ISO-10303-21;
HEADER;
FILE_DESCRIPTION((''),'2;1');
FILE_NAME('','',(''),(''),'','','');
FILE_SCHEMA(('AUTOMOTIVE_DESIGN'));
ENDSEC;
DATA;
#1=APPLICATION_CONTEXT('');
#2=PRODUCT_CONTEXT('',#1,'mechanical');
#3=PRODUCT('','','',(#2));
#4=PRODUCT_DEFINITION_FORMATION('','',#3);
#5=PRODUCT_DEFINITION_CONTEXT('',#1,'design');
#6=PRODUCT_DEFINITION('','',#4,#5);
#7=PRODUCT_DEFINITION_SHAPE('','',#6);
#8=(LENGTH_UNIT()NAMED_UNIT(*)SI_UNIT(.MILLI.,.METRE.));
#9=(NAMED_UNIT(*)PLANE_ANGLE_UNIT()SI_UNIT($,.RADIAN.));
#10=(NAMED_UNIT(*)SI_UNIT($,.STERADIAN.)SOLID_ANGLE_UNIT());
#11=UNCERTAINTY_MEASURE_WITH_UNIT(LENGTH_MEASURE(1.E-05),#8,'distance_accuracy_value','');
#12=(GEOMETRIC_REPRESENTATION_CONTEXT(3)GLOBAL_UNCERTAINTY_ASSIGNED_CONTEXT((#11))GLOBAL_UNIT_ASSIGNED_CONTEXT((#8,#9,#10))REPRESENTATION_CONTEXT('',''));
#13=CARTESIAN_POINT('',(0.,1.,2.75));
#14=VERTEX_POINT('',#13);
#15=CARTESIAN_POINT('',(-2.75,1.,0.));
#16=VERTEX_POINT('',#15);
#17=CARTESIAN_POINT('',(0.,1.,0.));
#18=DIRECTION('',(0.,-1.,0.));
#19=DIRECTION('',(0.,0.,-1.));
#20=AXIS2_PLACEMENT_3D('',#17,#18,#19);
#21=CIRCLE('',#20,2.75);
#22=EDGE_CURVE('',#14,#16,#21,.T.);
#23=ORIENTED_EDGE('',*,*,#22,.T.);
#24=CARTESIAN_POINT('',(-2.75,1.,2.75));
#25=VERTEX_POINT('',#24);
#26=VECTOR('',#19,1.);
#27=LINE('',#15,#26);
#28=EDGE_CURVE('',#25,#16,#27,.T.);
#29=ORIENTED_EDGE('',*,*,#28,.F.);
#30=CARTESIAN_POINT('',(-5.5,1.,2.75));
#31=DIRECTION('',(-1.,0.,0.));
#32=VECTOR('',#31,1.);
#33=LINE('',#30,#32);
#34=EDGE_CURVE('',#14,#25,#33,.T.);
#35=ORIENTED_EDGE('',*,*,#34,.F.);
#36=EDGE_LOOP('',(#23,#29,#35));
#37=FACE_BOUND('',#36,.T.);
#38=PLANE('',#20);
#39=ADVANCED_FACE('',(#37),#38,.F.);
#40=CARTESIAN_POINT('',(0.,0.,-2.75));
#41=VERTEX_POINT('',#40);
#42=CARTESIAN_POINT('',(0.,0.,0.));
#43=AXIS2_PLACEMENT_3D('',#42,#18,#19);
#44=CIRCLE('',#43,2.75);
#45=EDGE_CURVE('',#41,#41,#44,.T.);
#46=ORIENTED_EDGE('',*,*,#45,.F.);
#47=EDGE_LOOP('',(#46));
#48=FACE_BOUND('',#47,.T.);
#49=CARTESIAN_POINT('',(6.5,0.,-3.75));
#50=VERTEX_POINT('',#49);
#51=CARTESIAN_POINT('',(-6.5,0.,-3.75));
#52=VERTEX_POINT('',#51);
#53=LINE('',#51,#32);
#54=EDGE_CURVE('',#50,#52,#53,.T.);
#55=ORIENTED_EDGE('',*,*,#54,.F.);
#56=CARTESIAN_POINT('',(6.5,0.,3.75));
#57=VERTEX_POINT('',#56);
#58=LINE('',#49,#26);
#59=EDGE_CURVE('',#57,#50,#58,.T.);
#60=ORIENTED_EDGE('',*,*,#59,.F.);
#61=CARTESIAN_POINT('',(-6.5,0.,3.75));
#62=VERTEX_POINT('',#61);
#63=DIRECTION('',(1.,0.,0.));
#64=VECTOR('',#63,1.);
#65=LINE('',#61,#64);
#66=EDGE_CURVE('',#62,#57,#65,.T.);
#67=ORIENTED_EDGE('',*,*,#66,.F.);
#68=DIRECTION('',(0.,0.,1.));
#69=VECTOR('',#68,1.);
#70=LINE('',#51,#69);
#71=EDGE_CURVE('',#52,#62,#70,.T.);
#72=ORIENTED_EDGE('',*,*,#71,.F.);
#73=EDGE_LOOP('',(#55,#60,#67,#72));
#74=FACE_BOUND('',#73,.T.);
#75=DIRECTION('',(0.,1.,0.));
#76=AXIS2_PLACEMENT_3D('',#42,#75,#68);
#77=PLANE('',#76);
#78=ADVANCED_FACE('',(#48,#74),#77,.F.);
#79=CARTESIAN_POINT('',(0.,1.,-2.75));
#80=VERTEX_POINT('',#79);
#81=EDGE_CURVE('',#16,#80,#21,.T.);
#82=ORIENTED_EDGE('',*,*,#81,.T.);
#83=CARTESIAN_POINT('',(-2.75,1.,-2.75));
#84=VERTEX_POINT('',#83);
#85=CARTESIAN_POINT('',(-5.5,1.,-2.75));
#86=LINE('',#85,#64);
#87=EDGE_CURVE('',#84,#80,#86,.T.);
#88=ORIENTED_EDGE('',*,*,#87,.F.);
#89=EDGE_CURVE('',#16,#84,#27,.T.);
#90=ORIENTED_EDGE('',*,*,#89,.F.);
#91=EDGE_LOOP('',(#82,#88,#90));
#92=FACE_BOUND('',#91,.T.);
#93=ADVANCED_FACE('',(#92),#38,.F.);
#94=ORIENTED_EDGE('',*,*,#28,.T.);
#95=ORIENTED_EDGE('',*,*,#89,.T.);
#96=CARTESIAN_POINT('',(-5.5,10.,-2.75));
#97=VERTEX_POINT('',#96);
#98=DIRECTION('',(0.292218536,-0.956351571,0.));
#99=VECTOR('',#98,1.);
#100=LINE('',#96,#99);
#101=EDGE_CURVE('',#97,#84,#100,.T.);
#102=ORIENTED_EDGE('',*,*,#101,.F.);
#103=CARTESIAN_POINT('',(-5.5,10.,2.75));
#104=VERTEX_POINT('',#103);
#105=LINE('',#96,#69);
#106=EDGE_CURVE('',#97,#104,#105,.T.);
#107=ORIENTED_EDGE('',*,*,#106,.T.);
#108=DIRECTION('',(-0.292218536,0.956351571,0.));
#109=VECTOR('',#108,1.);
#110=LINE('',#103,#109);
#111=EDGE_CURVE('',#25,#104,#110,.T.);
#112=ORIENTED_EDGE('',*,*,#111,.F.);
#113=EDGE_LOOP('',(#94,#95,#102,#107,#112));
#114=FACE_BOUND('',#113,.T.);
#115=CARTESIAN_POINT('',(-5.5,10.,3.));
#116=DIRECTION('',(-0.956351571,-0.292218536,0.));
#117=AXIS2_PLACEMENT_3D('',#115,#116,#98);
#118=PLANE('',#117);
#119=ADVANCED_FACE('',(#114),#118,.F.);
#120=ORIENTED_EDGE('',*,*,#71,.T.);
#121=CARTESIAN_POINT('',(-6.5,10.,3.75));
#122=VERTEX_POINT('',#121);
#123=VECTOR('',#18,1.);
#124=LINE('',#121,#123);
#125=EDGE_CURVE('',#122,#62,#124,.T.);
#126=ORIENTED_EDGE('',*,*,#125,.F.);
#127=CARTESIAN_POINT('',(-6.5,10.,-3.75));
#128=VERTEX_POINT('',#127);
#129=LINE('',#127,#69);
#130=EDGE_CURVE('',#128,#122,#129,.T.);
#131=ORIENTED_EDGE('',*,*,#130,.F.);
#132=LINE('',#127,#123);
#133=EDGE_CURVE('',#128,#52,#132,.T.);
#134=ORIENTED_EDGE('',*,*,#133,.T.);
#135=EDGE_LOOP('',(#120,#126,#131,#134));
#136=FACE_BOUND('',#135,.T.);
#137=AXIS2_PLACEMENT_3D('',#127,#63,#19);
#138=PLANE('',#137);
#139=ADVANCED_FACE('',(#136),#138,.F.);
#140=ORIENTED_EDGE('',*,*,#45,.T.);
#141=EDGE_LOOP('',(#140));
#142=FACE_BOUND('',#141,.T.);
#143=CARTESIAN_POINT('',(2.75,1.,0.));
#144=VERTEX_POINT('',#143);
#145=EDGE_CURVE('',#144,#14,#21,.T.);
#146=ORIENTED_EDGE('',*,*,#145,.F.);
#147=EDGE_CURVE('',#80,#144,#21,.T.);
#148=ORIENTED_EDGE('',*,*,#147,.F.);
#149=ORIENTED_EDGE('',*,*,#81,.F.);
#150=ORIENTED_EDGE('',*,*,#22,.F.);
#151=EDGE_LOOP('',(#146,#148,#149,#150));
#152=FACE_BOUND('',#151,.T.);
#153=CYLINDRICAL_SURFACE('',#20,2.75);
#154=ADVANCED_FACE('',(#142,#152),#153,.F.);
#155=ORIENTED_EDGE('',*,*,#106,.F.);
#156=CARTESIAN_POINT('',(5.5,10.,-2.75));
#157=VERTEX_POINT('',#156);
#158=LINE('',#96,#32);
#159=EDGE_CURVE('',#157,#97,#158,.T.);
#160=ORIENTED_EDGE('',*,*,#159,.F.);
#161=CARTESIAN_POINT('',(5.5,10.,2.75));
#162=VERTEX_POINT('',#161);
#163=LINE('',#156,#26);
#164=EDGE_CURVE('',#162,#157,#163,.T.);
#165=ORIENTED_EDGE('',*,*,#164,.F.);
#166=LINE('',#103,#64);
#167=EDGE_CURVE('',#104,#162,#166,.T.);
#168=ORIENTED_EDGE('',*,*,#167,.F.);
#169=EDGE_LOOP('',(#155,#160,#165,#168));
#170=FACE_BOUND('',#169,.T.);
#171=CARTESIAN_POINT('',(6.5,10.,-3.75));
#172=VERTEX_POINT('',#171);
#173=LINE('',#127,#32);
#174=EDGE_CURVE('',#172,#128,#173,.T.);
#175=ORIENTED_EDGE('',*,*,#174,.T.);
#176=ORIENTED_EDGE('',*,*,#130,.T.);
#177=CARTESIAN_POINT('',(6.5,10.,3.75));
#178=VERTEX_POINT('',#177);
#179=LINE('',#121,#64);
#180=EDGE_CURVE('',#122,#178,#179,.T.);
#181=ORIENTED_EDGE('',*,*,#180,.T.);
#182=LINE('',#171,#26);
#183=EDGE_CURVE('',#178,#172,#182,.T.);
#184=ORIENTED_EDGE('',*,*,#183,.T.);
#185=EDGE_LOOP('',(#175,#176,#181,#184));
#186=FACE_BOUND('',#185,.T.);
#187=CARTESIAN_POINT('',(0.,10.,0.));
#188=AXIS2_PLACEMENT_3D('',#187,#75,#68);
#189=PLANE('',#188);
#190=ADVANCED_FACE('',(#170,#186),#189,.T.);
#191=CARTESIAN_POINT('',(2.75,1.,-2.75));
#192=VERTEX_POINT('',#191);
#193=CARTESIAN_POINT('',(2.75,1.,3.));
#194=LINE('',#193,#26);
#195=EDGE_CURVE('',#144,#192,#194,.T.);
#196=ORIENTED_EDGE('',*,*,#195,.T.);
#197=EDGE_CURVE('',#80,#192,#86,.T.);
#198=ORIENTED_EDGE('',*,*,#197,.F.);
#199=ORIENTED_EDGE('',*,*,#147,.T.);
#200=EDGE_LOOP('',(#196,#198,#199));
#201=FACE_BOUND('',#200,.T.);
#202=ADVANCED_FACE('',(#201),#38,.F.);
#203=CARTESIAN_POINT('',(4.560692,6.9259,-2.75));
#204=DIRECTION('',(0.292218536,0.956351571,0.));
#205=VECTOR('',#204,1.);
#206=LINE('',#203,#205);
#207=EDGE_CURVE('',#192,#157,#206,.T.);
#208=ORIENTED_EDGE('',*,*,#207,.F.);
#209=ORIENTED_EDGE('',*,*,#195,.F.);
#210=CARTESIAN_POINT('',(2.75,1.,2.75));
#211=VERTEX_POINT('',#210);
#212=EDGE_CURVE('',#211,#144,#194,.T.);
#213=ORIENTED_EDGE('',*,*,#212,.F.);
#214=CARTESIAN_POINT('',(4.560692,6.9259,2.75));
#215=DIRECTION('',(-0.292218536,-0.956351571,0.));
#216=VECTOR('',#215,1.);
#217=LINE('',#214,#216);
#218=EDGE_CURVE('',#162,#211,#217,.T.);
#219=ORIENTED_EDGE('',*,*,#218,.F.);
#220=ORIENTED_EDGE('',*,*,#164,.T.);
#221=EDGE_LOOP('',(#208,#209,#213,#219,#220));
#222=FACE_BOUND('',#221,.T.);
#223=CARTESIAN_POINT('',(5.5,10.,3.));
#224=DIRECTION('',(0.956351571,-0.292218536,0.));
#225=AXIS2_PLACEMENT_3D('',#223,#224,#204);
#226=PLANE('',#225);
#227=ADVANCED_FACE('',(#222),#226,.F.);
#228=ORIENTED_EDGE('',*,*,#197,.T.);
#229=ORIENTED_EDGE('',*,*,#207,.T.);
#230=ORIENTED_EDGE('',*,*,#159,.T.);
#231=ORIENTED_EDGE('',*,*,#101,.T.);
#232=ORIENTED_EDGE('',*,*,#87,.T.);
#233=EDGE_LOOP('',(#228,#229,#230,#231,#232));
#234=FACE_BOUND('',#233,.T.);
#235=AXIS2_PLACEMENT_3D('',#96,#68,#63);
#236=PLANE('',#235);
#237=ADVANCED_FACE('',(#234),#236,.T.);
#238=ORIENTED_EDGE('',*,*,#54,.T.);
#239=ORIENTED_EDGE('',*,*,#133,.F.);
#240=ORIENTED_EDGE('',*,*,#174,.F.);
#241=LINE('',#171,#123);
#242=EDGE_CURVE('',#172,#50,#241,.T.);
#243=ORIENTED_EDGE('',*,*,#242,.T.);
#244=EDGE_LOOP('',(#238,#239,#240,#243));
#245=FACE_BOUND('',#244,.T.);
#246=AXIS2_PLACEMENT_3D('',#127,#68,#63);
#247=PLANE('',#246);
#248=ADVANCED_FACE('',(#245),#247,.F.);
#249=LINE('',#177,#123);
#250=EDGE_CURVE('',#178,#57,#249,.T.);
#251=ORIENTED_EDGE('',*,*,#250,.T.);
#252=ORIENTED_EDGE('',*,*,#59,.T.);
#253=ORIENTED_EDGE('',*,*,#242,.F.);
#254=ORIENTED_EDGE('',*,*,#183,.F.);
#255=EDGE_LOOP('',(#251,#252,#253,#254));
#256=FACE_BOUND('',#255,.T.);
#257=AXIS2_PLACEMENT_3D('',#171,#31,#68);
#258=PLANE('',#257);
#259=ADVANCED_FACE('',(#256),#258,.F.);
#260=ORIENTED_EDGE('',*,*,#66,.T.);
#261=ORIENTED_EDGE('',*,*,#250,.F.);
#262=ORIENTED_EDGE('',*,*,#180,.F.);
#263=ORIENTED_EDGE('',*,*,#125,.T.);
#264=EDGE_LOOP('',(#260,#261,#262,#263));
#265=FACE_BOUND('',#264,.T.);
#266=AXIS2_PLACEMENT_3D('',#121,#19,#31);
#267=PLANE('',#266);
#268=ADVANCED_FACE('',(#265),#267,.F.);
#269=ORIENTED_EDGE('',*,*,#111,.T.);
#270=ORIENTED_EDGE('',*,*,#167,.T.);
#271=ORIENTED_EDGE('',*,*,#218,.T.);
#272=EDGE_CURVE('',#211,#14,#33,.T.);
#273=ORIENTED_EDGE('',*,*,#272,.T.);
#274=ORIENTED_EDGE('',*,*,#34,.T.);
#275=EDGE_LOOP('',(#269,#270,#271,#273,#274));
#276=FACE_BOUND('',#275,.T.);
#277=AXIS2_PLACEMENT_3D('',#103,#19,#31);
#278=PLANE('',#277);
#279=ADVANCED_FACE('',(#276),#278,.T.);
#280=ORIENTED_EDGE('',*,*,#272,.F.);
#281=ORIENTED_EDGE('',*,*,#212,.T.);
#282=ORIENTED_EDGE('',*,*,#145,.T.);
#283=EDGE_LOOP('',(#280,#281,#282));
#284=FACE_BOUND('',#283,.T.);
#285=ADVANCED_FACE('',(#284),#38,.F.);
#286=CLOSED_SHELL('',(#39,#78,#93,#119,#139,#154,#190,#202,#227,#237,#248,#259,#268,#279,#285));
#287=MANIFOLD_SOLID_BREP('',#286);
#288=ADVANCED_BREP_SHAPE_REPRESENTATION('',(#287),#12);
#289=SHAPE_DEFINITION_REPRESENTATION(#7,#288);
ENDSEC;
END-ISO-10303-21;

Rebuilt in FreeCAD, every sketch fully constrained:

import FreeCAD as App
import Part
import Sketcher
from FreeCAD import Vector

doc = App.newDocument("Part")
params = doc.addObject("Spreadsheet::Sheet", "Params")
for row, (alias, value) in enumerate([
    ("sketch1_width", "13 mm"),
    ("sketch1_width2", "11 mm"),
    ("sketch1_height", "7.5 mm"),
    ("sketch1_height2", "5.5 mm"),
    ("pad1_length", "10 mm"),
    ("sketch2_diameter", "5.5 mm"),
    ("sketch2_width", "13 mm"),
    ("sketch2_height", "7.5 mm"),
    ("pad2_length", "1 mm"),
    ("sketch3_height", "9 mm"),
    ("sketch3_width", "2.75 mm"),
    ("pad3_length", "6 mm"),
], start=1):
    params.set(f"A{row}", alias)
    params.set(f"B{row}", "=" + value)
    params.setAlias(f"B{row}", alias)

body = doc.addObject("PartDesign::Body", "Body")

# Sketch on XZ plane
sketch1 = doc.addObject("Sketcher::SketchObject", "Sketch")
body.addObject(sketch1)
sketch1.AttachmentSupport = (doc.XZ_Plane, [""])
sketch1.MapMode = "FlatFace"
sketch1.addGeometry([
    Part.LineSegment(Vector(-6, -4, 0), Vector(-6, 4, 0)),  # 0
    Part.LineSegment(Vector(-6, 4, 0), Vector(6, 4, 0)),  # 1
    Part.LineSegment(Vector(6, 4, 0), Vector(6, -4, 0)),  # 2
    Part.LineSegment(Vector(6, -4, 0), Vector(-6, -4, 0)),  # 3
    Part.LineSegment(Vector(6, 3, 0), Vector(-6, 3, 0)),  # 4
    Part.LineSegment(Vector(-6, 3, 0), Vector(-6, -3, 0)),  # 5
    Part.LineSegment(Vector(-6, -3, 0), Vector(6, -3, 0)),  # 6
    Part.LineSegment(Vector(6, -3, 0), Vector(6, 3, 0)),  # 7
], False)
sketch1.addConstraint([
    Sketcher.Constraint("Coincident", 0, 2, 1, 1),
    Sketcher.Constraint("Coincident", 1, 2, 2, 1),
    Sketcher.Constraint("Coincident", 2, 2, 3, 1),
    Sketcher.Constraint("Coincident", 3, 2, 0, 1),
    Sketcher.Constraint("Coincident", 4, 2, 5, 1),
    Sketcher.Constraint("Coincident", 5, 2, 6, 1),
    Sketcher.Constraint("Coincident", 6, 2, 7, 1),
    Sketcher.Constraint("Coincident", 7, 2, 4, 1),
    Sketcher.Constraint("Vertical", 0),
    Sketcher.Constraint("Horizontal", 1),
    Sketcher.Constraint("Vertical", 2),
    Sketcher.Constraint("Horizontal", 3),
    Sketcher.Constraint("Horizontal", 4),
    Sketcher.Constraint("Vertical", 5),
    Sketcher.Constraint("Horizontal", 6),
    Sketcher.Constraint("Vertical", 7),
    Sketcher.Constraint("Symmetric", 0, 2, 2, 2, -1, 1),
    Sketcher.Constraint("Symmetric", 4, 2, 6, 2, -1, 1),
    Sketcher.Constraint("DistanceX", 1, 1, 1, 2, 13.0),
    Sketcher.Constraint("DistanceX", 4, 2, 4, 1, 11.0),
    Sketcher.Constraint("DistanceY", 0, 1, 0, 2, 7.5),
    Sketcher.Constraint("DistanceY", 5, 2, 5, 1, 5.5),
])
sketch1.setExpression("Constraints[18]", "Params.sketch1_width")
sketch1.setExpression("Constraints[19]", "Params.sketch1_width2")
sketch1.setExpression("Constraints[20]", "Params.sketch1_height")
sketch1.setExpression("Constraints[21]", "Params.sketch1_height2")
pad1 = doc.addObject("PartDesign::Pad", "Pad")
body.addObject(pad1)
pad1.Profile = sketch1
pad1.setExpression("Length", "Params.pad1_length")
pad1.Reversed = True

# Sketch on XZ plane
sketch2 = doc.addObject("Sketcher::SketchObject", "Sketch001")
body.addObject(sketch2)
sketch2.AttachmentSupport = (doc.XZ_Plane, [""])
sketch2.MapMode = "FlatFace"
sketch2.addGeometry([
    Part.LineSegment(Vector(-6.5, 3.8, 0), Vector(-6.5, -3.8, 0)),  # 0
    Part.LineSegment(Vector(-6.5, -3.8, 0), Vector(6.5, -3.8, 0)),  # 1
    Part.LineSegment(Vector(6.5, -3.8, 0), Vector(6.5, 3.8, 0)),  # 2
    Part.LineSegment(Vector(6.5, 3.8, 0), Vector(-6.5, 3.8, 0)),  # 3
    Part.Circle(Vector(0, 0, 0), Vector(0, 0, 1), 2.8),  # 4
], False)
sketch2.addConstraint([
    Sketcher.Constraint("Coincident", 0, 2, 1, 1),
    Sketcher.Constraint("Coincident", 1, 2, 2, 1),
    Sketcher.Constraint("Coincident", 2, 2, 3, 1),
    Sketcher.Constraint("Coincident", 3, 2, 0, 1),
    Sketcher.Constraint("Vertical", 0),
    Sketcher.Constraint("Horizontal", 1),
    Sketcher.Constraint("Vertical", 2),
    Sketcher.Constraint("Horizontal", 3),
    Sketcher.Constraint("Coincident", 4, 3, -1, 1),
    Sketcher.Constraint("Symmetric", 0, 2, 2, 2, -1, 1),
    Sketcher.Constraint("Diameter", 4, 5.5),
    Sketcher.Constraint("DistanceX", 1, 1, 1, 2, 13.0),
    Sketcher.Constraint("DistanceY", 0, 2, 0, 1, 7.5),
])
sketch2.setExpression("Constraints[10]", "Params.sketch2_diameter")
sketch2.setExpression("Constraints[11]", "Params.sketch2_width")
sketch2.setExpression("Constraints[12]", "Params.sketch2_height")
pad2 = doc.addObject("PartDesign::Pad", "Pad001")
body.addObject(pad2)
pad2.Profile = sketch2
pad2.setExpression("Length", "Params.pad2_length")
pad2.Reversed = True

# Sketch on XY plane
sketch3 = doc.addObject("Sketcher::SketchObject", "Sketch002")
body.addObject(sketch3)
sketch3.AttachmentSupport = (doc.XY_Plane, [""])
sketch3.MapMode = "FlatFace"
sketch3.addGeometry([
    Part.LineSegment(Vector(-2.8, 1, 0), Vector(-5.5, 10, 0)),  # 0
    Part.LineSegment(Vector(-5.5, 10, 0), Vector(-5.5, 1, 0)),  # 1
    Part.LineSegment(Vector(-5.5, 1, 0), Vector(-2.8, 1, 0)),  # 2
    Part.LineSegment(Vector(5.5, 10, 0), Vector(2.8, 1, 0)),  # 3
    Part.LineSegment(Vector(2.8, 1, 0), Vector(5.5, 1, 0)),  # 4
    Part.LineSegment(Vector(5.5, 1, 0), Vector(5.5, 10, 0)),  # 5
], False)
sketch3.addConstraint([
    Sketcher.Constraint("Coincident", 0, 2, 1, 1),
    Sketcher.Constraint("Coincident", 1, 2, 2, 1),
    Sketcher.Constraint("Coincident", 2, 2, 0, 1),
    Sketcher.Constraint("Coincident", 3, 2, 4, 1),
    Sketcher.Constraint("Coincident", 4, 2, 5, 1),
    Sketcher.Constraint("Coincident", 5, 2, 3, 1),
    Sketcher.Constraint("Vertical", 1),
    Sketcher.Constraint("Horizontal", 2),
    Sketcher.Constraint("Horizontal", 4),
    Sketcher.Constraint("Vertical", 5),
    Sketcher.Constraint("Symmetric", 2, 2, 3, 2, -2),
    Sketcher.Constraint("Symmetric", 0, 2, 5, 2, -2),
    Sketcher.Constraint("DistanceY", 1, 2, 1, 1, 9.0),
    Sketcher.Constraint("DistanceY", -1, 1, 0, 2, 10.0),
    Sketcher.Constraint("DistanceX", 1, 2, 4, 2, 11.0),
    Sketcher.Constraint("DistanceX", 2, 1, 2, 2, 2.75),
])
sketch3.setExpression("Constraints[12]", "Params.sketch3_height")
sketch3.setExpression("Constraints[15]", "Params.sketch3_width")
pad3 = doc.addObject("PartDesign::Pad", "Pad002")
body.addObject(pad3)
pad3.Profile = sketch3
pad3.setExpression("Length", "Params.pad3_length")
pad3.Midplane = True

doc.recompute()
